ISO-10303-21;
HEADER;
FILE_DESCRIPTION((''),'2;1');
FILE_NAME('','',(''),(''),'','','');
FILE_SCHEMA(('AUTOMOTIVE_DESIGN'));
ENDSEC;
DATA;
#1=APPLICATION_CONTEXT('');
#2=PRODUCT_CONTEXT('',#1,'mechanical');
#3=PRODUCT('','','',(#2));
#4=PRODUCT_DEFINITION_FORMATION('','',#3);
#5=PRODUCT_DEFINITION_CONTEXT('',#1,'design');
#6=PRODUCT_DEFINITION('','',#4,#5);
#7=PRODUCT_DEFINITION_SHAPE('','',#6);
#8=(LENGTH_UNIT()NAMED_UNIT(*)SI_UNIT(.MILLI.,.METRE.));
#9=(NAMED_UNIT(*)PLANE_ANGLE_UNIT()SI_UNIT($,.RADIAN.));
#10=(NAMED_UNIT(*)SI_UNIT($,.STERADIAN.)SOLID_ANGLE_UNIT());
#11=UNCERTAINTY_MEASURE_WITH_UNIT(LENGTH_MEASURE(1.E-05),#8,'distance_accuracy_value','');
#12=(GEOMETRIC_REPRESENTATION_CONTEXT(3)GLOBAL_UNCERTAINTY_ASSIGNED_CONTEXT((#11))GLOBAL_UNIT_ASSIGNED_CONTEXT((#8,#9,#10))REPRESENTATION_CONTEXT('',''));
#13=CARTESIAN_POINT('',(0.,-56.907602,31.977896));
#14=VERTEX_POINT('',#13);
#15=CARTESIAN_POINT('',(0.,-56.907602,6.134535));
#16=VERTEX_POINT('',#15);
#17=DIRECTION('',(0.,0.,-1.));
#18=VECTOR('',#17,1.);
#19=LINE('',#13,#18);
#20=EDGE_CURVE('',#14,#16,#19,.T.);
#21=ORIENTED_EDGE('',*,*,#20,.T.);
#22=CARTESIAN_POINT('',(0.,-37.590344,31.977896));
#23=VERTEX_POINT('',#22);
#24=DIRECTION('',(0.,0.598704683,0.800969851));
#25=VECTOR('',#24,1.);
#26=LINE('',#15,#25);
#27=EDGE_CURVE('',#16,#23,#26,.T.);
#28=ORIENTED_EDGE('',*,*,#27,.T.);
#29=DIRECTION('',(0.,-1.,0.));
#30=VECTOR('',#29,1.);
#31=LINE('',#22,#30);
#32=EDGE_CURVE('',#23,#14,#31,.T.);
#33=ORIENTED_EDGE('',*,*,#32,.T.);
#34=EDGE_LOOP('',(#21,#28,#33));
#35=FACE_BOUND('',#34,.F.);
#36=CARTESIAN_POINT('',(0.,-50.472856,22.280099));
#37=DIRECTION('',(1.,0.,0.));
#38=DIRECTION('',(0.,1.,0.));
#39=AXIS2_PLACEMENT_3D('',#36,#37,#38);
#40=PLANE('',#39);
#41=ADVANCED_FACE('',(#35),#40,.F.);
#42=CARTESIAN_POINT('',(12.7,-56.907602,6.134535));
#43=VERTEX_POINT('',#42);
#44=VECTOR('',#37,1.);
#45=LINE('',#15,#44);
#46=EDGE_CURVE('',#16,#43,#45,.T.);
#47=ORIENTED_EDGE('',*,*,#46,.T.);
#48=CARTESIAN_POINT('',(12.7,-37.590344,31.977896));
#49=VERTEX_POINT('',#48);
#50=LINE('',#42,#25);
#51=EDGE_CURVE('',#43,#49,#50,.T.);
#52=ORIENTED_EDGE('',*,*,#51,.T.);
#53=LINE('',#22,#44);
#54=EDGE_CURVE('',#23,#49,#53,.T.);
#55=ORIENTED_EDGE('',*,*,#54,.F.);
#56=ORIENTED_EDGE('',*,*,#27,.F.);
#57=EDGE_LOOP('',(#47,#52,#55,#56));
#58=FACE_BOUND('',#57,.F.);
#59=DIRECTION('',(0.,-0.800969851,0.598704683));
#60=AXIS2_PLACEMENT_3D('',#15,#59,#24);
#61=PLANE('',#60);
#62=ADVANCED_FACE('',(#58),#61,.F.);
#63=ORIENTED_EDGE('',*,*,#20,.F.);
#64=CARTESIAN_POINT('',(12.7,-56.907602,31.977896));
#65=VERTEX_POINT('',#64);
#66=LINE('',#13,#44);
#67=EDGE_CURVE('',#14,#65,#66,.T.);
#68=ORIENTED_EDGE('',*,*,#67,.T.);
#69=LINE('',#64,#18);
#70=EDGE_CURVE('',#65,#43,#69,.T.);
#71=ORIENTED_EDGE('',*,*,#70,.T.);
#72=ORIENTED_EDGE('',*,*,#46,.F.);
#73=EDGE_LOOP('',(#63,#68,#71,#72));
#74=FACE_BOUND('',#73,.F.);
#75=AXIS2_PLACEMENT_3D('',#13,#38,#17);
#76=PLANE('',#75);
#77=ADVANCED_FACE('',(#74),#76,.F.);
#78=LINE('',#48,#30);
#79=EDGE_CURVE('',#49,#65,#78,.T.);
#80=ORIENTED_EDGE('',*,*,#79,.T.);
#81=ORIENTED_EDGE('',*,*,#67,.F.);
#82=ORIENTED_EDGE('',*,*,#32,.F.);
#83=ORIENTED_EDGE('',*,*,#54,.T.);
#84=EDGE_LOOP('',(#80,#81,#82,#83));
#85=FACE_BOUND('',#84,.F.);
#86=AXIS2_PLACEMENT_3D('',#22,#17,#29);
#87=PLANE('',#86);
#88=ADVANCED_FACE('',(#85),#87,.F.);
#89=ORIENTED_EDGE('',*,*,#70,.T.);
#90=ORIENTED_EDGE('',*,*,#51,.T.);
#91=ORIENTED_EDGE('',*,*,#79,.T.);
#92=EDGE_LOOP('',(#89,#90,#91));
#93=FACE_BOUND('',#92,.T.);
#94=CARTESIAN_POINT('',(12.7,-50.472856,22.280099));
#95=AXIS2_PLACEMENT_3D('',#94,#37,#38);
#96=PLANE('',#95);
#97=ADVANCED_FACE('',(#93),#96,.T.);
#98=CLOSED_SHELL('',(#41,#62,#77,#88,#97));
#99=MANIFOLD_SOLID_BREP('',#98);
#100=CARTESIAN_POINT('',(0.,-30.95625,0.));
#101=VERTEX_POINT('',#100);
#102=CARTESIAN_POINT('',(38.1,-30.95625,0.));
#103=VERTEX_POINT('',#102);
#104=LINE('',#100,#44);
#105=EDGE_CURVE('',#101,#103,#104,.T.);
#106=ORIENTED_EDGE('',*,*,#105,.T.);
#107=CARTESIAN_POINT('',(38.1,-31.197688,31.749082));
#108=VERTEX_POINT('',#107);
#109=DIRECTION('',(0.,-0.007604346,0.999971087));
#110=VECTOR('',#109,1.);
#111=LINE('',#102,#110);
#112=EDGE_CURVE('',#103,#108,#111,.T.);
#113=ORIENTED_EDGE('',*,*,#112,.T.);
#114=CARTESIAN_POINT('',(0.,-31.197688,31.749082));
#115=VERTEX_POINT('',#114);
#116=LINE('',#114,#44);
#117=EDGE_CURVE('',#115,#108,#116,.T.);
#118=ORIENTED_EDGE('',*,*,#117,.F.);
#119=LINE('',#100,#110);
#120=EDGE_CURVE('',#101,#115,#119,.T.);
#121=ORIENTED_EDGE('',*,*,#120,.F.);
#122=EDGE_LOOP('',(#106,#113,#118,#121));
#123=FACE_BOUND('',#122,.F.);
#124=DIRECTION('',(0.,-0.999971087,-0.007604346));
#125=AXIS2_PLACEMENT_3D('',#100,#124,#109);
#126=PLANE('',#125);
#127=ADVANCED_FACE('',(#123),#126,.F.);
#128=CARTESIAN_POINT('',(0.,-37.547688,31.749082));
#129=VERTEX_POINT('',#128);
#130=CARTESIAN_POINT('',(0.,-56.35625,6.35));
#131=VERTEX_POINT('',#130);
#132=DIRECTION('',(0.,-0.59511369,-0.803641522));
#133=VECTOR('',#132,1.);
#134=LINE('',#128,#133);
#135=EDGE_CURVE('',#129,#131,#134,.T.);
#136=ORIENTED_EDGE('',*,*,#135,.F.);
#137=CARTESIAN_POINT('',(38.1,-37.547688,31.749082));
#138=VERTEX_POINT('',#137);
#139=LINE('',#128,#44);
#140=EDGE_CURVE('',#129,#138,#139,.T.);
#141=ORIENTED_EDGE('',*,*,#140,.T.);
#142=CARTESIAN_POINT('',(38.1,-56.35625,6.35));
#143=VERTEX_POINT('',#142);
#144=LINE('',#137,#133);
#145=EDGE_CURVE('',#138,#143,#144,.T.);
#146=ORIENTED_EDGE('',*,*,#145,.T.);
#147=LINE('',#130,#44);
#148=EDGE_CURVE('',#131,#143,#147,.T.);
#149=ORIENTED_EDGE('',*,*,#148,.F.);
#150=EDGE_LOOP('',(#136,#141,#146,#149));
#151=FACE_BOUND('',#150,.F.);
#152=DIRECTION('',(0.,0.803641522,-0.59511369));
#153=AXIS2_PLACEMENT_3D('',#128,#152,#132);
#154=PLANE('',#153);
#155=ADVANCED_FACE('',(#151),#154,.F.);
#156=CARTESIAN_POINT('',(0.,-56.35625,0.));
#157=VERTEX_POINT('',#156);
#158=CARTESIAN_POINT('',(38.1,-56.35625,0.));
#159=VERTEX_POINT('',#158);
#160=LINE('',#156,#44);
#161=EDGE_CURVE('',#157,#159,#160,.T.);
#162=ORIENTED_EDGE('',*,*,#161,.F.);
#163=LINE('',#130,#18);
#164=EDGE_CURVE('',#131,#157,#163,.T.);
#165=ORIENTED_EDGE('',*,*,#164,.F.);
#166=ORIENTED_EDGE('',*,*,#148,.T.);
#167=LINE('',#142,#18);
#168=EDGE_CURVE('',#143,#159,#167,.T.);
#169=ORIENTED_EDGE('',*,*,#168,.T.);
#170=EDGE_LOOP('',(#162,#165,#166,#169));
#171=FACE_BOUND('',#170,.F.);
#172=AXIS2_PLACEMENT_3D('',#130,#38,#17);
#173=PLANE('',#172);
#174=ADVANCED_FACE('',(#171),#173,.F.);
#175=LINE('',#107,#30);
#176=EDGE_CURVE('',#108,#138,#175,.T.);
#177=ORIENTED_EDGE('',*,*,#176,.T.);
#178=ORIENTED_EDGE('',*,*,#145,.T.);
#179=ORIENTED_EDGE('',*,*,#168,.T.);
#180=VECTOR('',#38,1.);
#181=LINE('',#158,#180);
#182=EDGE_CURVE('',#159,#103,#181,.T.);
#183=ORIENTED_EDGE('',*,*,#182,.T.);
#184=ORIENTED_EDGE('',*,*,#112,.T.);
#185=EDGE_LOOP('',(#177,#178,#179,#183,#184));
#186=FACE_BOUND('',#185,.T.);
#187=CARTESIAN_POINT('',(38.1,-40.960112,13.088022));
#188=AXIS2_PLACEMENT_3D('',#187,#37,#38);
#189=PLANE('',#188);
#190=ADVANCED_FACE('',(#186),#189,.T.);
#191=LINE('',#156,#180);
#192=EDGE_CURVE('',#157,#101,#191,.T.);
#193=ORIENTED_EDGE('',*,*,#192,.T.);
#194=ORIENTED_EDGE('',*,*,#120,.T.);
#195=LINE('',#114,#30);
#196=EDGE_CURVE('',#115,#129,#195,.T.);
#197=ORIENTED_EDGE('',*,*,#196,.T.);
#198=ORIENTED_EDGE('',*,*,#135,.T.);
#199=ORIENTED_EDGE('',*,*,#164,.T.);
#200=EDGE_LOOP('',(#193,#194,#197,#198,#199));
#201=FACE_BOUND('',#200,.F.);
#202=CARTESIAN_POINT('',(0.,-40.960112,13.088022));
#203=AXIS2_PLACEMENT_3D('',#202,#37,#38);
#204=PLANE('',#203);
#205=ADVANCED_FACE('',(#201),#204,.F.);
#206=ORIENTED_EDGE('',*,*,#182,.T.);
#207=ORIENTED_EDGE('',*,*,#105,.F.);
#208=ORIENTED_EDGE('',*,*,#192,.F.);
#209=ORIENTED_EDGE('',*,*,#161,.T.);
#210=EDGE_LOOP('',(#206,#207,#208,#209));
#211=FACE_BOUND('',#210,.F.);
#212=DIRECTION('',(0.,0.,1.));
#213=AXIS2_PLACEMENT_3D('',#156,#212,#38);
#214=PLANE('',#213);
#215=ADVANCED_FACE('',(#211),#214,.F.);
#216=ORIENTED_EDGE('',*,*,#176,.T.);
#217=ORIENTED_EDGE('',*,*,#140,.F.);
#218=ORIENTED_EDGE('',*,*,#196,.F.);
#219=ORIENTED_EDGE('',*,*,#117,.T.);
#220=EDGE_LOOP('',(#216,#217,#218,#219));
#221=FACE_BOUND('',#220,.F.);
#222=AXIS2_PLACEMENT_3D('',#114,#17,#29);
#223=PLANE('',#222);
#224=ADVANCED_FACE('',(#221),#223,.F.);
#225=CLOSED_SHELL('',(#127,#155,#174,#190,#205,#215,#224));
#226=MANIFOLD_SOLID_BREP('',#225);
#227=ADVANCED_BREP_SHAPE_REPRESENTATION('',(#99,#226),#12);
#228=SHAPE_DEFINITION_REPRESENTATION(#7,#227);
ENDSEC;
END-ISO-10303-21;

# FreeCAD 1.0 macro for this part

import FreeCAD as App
import Part
import Sketcher
from FreeCAD import Vector
Q = App.Units.Quantity

doc = App.newDocument("Part")
body = doc.addObject("PartDesign::Body", "Body")

# Sketch on YZ plane
sketch1 = doc.addObject("Sketcher::SketchObject", "Sketch")
body.addObject(sketch1)
sketch1.AttachmentSupport = (doc.YZ_Plane, [""])
sketch1.MapMode = "FlatFace"
sketch1.addGeometry([
    Part.LineSegment(Vector(-56, 6, 0), Vector(-56, 0, 0)),  # 0
    Part.LineSegment(Vector(-56, 0, 0), Vector(-31, 0, 0)),  # 1
    Part.LineSegment(Vector(-31, 0, 0), Vector(-31, 32, 0)),  # 2
    Part.LineSegment(Vector(-31, 32, 0), Vector(-38, 32, 0)),  # 3
    Part.LineSegment(Vector(-38, 32, 0), Vector(-56, 6, 0)),  # 4
], False)
sketch1.addConstraint([
    Sketcher.Constraint("Coincident", 0, 2, 1, 1),
    Sketcher.Constraint("Coincident", 1, 2, 2, 1),
    Sketcher.Constraint("Coincident", 2, 2, 3, 1),
    Sketcher.Constraint("Coincident", 3, 2, 4, 1),
    Sketcher.Constraint("Coincident", 4, 2, 0, 1),
    Sketcher.Constraint("Vertical", 0),
    Sketcher.Constraint("Horizontal", 1),
    Sketcher.Constraint("Horizontal", 3),
    Sketcher.Constraint("PointOnObject", 0, 2, -1),
    Sketcher.Constraint("Equal", 3, 0),
    Sketcher.Constraint("DistanceX", 1, 1, 1, 2, Q("1 in")),
    Sketcher.Constraint("DistanceX", 3, 2, 3, 1, Q("0.25 in")),
    Sketcher.Constraint("Distance", 2, Q("1.25 in")),
    Sketcher.Constraint("DistanceX", 0, 2, -1, 1, Q("2.21875 in")),
    Sketcher.Constraint("Distance", 4, 31.60499),
])
pad1 = doc.addObject("PartDesign::Pad", "Pad")
body.addObject(pad1)
pad1.Profile = sketch1
pad1.Length = Q("1.5 in")
body2 = doc.addObject("PartDesign::Body", "Body001")

# Sketch on YZ plane
sketch2 = doc.addObject("Sketcher::SketchObject", "Sketch001")
body2.addObject(sketch2)
sketch2.AttachmentSupport = (doc.getObject("YZ_Plane001"), [""])
sketch2.MapMode = "FlatFace"
sketch2.addGeometry([
    Part.LineSegment(Vector(-57, 6, 0), Vector(-38, 32, 0)),
    Part.LineSegment(Vector(-38, 32, 0), Vector(-57, 32, 0)),
    Part.LineSegment(Vector(-57, 32, 0), Vector(-57, 6, 0)),
], False)
sketch2.addConstraint([
    Sketcher.Constraint("Coincident", 0, 2, 1, 1),
    Sketcher.Constraint("Coincident", 1, 2, 2, 1),
    Sketcher.Constraint("Coincident", 2, 2, 0, 1),
    Sketcher.Constraint("Horizontal", 1),
    Sketcher.Constraint("Vertical", 2),
    Sketcher.Constraint("DistanceY", 2, 2, 2, 1, 25.843361),
    Sketcher.Constraint("DistanceX", 1, 2, -1, 1, 56.907602),
    Sketcher.Constraint("DistanceX", 1, 2, 1, 1, 19.317258),
    Sketcher.Constraint("DistanceY", -1, 1, 0, 2, 31.977896),
])
pad2 = doc.addObject("PartDesign::Pad", "Pad001")
body2.addObject(pad2)
pad2.Profile = sketch2
pad2.Length = Q("0.5 in")

doc.recompute()
